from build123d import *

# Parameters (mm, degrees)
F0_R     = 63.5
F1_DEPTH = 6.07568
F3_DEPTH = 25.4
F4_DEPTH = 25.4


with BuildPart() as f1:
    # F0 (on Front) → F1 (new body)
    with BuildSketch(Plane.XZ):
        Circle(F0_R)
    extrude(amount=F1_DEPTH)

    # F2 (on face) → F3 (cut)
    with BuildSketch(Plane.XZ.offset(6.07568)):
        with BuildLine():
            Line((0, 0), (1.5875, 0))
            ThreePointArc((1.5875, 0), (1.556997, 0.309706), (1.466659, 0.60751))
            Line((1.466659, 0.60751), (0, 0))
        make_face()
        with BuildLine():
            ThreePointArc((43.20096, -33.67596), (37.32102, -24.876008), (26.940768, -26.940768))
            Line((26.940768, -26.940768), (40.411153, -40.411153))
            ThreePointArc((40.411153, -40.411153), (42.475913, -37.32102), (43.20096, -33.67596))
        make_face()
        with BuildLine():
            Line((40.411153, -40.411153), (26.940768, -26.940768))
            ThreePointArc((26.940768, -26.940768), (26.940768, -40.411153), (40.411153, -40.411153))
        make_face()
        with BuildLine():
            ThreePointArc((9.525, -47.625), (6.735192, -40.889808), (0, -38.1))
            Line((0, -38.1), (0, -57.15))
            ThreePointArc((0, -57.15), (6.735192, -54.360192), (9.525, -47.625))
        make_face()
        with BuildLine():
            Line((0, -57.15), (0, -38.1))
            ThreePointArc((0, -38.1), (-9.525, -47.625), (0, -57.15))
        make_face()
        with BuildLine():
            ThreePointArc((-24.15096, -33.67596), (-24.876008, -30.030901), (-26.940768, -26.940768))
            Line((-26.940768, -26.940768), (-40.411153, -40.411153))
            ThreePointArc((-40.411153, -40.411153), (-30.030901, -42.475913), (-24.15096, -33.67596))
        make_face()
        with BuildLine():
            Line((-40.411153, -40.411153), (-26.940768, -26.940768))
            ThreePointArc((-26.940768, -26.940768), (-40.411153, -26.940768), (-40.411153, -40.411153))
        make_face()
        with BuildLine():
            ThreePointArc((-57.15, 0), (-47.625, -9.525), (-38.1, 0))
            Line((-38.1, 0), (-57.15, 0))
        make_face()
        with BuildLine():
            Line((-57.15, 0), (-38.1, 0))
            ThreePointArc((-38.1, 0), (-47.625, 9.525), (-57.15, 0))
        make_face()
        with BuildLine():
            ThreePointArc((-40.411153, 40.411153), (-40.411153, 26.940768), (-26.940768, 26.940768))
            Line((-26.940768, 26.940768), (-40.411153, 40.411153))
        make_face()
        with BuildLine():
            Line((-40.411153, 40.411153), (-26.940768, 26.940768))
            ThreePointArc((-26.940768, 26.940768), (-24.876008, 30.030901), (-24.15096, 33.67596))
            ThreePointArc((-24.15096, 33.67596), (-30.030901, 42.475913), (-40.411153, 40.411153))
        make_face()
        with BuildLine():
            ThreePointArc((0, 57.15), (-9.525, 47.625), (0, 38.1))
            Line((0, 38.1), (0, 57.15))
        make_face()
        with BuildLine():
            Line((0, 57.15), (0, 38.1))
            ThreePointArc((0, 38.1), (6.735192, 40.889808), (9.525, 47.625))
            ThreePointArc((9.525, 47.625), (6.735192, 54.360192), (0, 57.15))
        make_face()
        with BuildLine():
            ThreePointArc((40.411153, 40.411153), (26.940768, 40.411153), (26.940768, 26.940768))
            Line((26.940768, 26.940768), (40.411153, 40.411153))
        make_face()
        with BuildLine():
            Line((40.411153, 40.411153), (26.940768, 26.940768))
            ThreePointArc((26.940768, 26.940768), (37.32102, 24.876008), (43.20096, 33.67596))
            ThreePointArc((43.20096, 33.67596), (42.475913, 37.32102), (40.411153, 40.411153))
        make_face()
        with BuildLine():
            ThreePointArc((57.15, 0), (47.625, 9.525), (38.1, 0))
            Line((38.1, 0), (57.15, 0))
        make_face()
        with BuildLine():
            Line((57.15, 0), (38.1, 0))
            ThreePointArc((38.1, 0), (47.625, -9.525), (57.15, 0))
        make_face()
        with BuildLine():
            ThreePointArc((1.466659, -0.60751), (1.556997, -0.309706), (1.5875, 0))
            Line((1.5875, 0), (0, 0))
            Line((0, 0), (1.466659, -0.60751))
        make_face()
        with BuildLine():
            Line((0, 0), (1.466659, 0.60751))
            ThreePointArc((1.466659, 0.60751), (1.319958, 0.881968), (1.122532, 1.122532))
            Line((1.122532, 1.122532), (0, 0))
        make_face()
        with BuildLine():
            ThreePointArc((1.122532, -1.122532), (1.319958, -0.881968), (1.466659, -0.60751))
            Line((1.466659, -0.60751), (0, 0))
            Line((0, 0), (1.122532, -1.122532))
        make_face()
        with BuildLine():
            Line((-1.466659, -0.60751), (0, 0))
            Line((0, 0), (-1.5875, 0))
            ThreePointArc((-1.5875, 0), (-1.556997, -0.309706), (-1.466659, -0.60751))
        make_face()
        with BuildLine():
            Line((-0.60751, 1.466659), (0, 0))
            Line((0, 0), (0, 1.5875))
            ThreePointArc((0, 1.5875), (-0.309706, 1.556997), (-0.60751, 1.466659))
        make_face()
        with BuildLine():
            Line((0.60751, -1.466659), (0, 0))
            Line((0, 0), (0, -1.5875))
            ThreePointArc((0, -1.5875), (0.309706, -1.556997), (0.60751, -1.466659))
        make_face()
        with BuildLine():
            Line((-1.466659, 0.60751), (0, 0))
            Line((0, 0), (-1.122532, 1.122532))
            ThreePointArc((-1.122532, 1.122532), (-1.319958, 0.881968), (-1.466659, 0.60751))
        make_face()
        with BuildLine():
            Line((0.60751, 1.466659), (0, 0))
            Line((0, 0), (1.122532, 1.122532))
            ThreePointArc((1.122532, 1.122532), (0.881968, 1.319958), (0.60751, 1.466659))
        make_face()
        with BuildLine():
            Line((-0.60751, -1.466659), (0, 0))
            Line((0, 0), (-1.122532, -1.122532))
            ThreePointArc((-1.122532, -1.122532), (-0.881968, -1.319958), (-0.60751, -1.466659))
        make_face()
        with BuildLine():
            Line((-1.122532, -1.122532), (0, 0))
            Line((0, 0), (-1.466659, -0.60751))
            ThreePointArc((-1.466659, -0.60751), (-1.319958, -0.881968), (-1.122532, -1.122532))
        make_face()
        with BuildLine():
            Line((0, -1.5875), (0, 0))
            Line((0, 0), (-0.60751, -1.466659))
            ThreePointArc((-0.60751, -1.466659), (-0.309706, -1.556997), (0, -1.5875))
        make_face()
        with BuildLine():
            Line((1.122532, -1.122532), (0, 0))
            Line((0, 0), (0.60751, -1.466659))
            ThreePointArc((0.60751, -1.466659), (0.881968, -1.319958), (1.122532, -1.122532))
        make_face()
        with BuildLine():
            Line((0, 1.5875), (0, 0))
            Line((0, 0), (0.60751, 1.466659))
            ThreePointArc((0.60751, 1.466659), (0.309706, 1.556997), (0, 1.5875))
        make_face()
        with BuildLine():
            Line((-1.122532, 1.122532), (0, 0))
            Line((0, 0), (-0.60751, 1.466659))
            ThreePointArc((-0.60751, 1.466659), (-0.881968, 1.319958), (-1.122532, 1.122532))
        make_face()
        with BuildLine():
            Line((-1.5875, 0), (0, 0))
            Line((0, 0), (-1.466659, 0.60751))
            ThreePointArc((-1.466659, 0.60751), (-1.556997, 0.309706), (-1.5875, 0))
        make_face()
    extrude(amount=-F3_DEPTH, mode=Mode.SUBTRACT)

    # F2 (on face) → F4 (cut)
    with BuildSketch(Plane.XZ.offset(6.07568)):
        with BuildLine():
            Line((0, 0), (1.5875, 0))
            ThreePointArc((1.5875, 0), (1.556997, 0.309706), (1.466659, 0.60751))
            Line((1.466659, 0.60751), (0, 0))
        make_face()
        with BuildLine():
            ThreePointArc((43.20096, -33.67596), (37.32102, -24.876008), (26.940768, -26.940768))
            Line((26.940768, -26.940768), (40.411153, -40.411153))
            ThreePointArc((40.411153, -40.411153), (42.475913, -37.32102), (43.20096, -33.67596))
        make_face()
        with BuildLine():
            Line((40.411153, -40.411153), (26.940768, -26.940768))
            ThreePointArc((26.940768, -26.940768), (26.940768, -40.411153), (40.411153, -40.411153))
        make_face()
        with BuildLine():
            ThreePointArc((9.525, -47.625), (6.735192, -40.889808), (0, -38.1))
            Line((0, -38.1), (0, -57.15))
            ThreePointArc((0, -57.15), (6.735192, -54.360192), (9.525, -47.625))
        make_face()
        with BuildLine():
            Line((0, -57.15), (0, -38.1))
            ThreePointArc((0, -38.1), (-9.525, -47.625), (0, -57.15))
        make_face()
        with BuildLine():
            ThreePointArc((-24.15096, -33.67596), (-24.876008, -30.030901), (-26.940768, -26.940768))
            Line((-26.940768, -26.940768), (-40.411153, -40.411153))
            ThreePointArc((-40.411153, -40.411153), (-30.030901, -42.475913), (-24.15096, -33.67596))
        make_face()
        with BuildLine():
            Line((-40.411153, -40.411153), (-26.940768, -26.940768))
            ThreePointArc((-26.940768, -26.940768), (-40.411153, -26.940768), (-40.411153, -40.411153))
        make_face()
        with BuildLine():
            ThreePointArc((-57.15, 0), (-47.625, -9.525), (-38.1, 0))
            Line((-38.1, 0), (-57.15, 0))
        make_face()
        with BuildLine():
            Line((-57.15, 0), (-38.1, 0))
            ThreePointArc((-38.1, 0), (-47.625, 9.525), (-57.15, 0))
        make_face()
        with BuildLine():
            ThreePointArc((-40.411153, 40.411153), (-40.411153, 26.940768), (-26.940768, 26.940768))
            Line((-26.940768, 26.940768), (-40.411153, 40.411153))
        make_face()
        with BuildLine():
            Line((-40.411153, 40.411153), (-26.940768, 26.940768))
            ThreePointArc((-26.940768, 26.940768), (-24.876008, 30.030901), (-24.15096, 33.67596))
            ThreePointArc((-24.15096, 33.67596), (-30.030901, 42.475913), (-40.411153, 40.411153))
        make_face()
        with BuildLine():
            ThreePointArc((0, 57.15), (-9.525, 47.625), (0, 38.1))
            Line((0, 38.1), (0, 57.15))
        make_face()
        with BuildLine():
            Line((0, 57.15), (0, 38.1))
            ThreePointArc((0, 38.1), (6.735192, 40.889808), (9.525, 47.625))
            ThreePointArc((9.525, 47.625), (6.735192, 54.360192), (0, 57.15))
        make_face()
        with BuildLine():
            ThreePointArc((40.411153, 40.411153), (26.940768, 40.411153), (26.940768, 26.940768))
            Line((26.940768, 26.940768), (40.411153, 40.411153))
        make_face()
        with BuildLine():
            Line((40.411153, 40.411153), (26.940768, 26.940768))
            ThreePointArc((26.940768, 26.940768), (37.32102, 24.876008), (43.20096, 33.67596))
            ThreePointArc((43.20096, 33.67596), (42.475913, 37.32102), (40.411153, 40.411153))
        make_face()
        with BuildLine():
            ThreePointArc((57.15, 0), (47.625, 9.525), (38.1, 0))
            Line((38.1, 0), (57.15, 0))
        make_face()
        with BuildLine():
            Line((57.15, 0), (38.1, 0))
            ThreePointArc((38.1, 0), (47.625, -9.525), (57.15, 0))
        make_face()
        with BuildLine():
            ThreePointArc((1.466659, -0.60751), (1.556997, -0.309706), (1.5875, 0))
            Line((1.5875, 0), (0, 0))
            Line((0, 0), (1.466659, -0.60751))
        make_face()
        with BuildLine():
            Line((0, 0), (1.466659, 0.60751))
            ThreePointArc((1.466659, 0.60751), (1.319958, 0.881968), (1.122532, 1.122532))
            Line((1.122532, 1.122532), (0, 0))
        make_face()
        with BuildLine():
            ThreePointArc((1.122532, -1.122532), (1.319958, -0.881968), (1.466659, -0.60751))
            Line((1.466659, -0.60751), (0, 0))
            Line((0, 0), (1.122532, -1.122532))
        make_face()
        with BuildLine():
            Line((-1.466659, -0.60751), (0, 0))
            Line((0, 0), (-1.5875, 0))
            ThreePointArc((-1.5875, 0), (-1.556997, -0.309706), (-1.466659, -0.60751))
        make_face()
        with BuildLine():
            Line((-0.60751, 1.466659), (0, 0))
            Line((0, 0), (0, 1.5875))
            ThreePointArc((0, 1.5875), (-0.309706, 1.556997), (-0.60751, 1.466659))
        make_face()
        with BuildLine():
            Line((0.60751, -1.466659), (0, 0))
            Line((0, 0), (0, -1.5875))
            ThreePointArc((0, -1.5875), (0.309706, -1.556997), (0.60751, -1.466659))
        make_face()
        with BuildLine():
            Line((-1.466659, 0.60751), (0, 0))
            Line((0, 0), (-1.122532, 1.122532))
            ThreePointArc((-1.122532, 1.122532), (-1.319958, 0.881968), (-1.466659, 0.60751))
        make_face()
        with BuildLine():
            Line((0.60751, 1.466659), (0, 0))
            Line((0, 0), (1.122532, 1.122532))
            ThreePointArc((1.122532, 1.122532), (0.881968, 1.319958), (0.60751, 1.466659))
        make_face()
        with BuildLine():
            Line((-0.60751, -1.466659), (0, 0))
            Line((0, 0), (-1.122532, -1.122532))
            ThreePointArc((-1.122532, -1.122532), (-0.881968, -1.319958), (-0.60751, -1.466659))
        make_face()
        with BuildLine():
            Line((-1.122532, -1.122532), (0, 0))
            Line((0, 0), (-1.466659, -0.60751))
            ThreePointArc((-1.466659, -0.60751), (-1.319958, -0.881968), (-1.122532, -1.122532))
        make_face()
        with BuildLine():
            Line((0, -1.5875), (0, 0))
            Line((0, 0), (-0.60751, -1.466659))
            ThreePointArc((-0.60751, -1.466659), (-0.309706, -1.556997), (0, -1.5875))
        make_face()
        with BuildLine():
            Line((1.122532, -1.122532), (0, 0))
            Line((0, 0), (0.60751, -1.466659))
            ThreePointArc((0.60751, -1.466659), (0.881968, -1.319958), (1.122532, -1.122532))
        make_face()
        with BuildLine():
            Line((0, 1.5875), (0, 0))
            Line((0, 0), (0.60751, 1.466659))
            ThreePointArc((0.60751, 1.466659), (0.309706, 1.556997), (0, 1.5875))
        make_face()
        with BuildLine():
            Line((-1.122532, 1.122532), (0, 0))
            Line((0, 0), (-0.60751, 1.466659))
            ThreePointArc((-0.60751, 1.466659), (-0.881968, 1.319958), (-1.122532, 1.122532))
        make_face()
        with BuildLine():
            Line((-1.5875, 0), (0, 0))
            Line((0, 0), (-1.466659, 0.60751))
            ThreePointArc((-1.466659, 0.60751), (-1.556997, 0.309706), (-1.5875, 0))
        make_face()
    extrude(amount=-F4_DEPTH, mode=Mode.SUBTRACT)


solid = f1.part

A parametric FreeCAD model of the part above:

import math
import FreeCAD as App
import Part
import Sketcher
from FreeCAD import Vector
Q = App.Units.Quantity

doc = App.newDocument("Part")
body = doc.addObject("PartDesign::Body", "Body")

# Sketch on XZ plane
sketch1 = body.newObject("Sketcher::SketchObject", "Sketch")
sketch1.AttachmentSupport = (doc.getObject("XZ_Plane"), [""])
sketch1.MapMode = "FlatFace"
sketch1.addGeometry(Part.Circle(Vector(0, 0, 0), Vector(0, 0, 1), 64), False)
sketch1.addConstraint(Sketcher.Constraint("Coincident", 0, 3, -1, 1))
sketch1.addConstraint(Sketcher.Constraint("Diameter", 0, Q("5 in")))
pad1 = body.newObject("PartDesign::Pad", "Pad")
pad1.Profile = sketch1
pad1.Length = Q("0.2392 in")

# Sketch on XZ plane
sketch2 = body.newObject("Sketcher::SketchObject", "Sketch001")
sketch2.AttachmentSupport = (doc.getObject("XZ_Plane"), [""])
sketch2.MapMode = "FlatFace"
sketch2.AttachmentOffset = App.Placement(Vector(0, 0, 0.2392 * 25.4), App.Rotation())
sketch2.addGeometry(Part.ArcOfCircle(Part.Circle(Vector(0, 0, 0), Vector(0, 0, 1), 1.6), math.radians(0), math.radians(23)), False)
sketch2.addGeometry(Part.ArcOfCircle(Part.Circle(Vector(0, 0, 0), Vector(0, 0, 1), 1.6), math.radians(23), math.radians(45)), False)
sketch2.addGeometry(Part.ArcOfCircle(Part.Circle(Vector(0, 0, 0), Vector(0, 0, 1), 1.6), math.radians(45), math.radians(67)), False)
sketch2.addGeometry(Part.ArcOfCircle(Part.Circle(Vector(0, 0, 0), Vector(0, 0, 1), 1.6), math.radians(67), math.radians(90)), False)
sketch2.addGeometry(Part.ArcOfCircle(Part.Circle(Vector(0, 0, 0), Vector(0, 0, 1), 1.6), math.radians(90), math.radians(113)), False)
sketch2.addGeometry(Part.ArcOfCircle(Part.Circle(Vector(0, 0, 0), Vector(0, 0, 1), 1.6), math.radians(113), math.radians(135)), False)
sketch2.addGeometry(Part.ArcOfCircle(Part.Circle(Vector(0, 0, 0), Vector(0, 0, 1), 1.6), math.radians(135), math.radians(157)), False)
sketch2.addGeometry(Part.ArcOfCircle(Part.Circle(Vector(0, 0, 0), Vector(0, 0, 1), 1.6), math.radians(157), math.radians(180)), False)
sketch2.addGeometry(Part.ArcOfCircle(Part.Circle(Vector(0, 0, 0), Vector(0, 0, 1), 1.6), math.radians(180), math.radians(203)), False)
sketch2.addGeometry(Part.ArcOfCircle(Part.Circle(Vector(0, 0, 0), Vector(0, 0, 1), 1.6), math.radians(-157), math.radians(-135)), False)
sketch2.addGeometry(Part.ArcOfCircle(Part.Circle(Vector(0, 0, 0), Vector(0, 0, 1), 1.6), math.radians(-135), math.radians(-113)), False)
sketch2.addGeometry(Part.ArcOfCircle(Part.Circle(Vector(0, 0, 0), Vector(0, 0, 1), 1.6), math.radians(-113), math.radians(-90)), False)
sketch2.addGeometry(Part.ArcOfCircle(Part.Circle(Vector(0, 0, 0), Vector(0, 0, 1), 1.6), math.radians(-90), math.radians(-67)), False)
sketch2.addGeometry(Part.ArcOfCircle(Part.Circle(Vector(0, 0, 0), Vector(0, 0, 1), 1.6), math.radians(-67), math.radians(-45)), False)
sketch2.addGeometry(Part.ArcOfCircle(Part.Circle(Vector(0, 0, 0), Vector(0, 0, 1), 1.6), math.radians(-45), math.radians(-23)), False)
sketch2.addGeometry(Part.ArcOfCircle(Part.Circle(Vector(0, 0, 0), Vector(0, 0, 1), 1.6), math.radians(-23), math.radians(0)), False)
sketch2.addGeometry(Part.ArcOfCircle(Part.Circle(Vector(33.7, -33.7, 0), Vector(0, 0, 1), 9.5), math.radians(0), math.radians(135)), False)
sketch2.addGeometry(Part.ArcOfCircle(Part.Circle(Vector(33.7, -33.7, 0), Vector(0, 0, 1), 9.5), math.radians(135), math.radians(315)), False)
sketch2.addGeometry(Part.ArcOfCircle(Part.Circle(Vector(33.7, -33.7, 0), Vector(0, 0, 1), 9.5), math.radians(-45), math.radians(0)), False)
sketch2.addGeometry(Part.ArcOfCircle(Part.Circle(Vector(0, -47.6, 0), Vector(0, 0, 1), 9.5), math.radians(0), math.radians(90)), False)
sketch2.addGeometry(Part.ArcOfCircle(Part.Circle(Vector(0, -47.6, 0), Vector(0, 0, 1), 9.5), math.radians(90), math.radians(270)), False)
sketch2.addGeometry(Part.ArcOfCircle(Part.Circle(Vector(0, -47.6, 0), Vector(0, 0, 1), 9.5), math.radians(-90), math.radians(0)), False)
sketch2.addGeometry(Part.ArcOfCircle(Part.Circle(Vector(-33.7, -33.7, 0), Vector(0, 0, 1), 9.5), math.radians(0), math.radians(45)), False)
sketch2.addGeometry(Part.ArcOfCircle(Part.Circle(Vector(-33.7, -33.7, 0), Vector(0, 0, 1), 9.5), math.radians(45), math.radians(225)), False)
sketch2.addGeometry(Part.ArcOfCircle(Part.Circle(Vector(-33.7, -33.7, 0), Vector(0, 0, 1), 9.5), math.radians(-135), math.radians(0)), False)
sketch2.addGeometry(Part.Circle(Vector(-47.6, 0, 0), Vector(0, 0, 1), 9.5), False)
sketch2.addGeometry(Part.ArcOfCircle(Part.Circle(Vector(-33.7, 33.7, 0), Vector(0, 0, 1), 9.5), math.radians(135), math.radians(315)), False)
sketch2.addGeometry(Part.ArcOfCircle(Part.Circle(Vector(-33.7, 33.7, 0), Vector(0, 0, 1), 9.5), math.radians(-45), math.radians(0)), False)
sketch2.addGeometry(Part.ArcOfCircle(Part.Circle(Vector(-33.7, 33.7, 0), Vector(0, 0, 1), 9.5), math.radians(0), math.radians(135)), False)
sketch2.addGeometry(Part.ArcOfCircle(Part.Circle(Vector(0, 47.6, 0), Vector(0, 0, 1), 9.5), math.radians(90), math.radians(270)), False)
sketch2.addGeometry(Part.ArcOfCircle(Part.Circle(Vector(0, 47.6, 0), Vector(0, 0, 1), 9.5), math.radians(-90), math.radians(0)), False)
sketch2.addGeometry(Part.ArcOfCircle(Part.Circle(Vector(0, 47.6, 0), Vector(0, 0, 1), 9.5), math.radians(0), math.radians(90)), False)
sketch2.addGeometry(Part.ArcOfCircle(Part.Circle(Vector(33.7, 33.7, 0), Vector(0, 0, 1), 9.5), math.radians(45), math.radians(225)), False)
sketch2.addGeometry(Part.ArcOfCircle(Part.Circle(Vector(33.7, 33.7, 0), Vector(0, 0, 1), 9.5), math.radians(-135), math.radians(0)), False)
sketch2.addGeometry(Part.ArcOfCircle(Part.Circle(Vector(33.7, 33.7, 0), Vector(0, 0, 1), 9.5), math.radians(0), math.radians(45)), False)
sketch2.addGeometry(Part.Circle(Vector(47.6, 0, 0), Vector(0, 0, 1), 9.5), False)
sketch2.addConstraint(Sketcher.Constraint("Tangent", 0, 2, 1, 1))
sketch2.addConstraint(Sketcher.Constraint("Tangent", 1, 2, 2, 1))
sketch2.addConstraint(Sketcher.Constraint("Tangent", 2, 2, 3, 1))
sketch2.addConstraint(Sketcher.Constraint("Coincident", 3, 2, 4, 1))
sketch2.addConstraint(Sketcher.Constraint("Tangent", 4, 2, 5, 1))
sketch2.addConstraint(Sketcher.Constraint("Tangent", 5, 2, 6, 1))
sketch2.addConstraint(Sketcher.Constraint("Tangent", 6, 2, 7, 1))
sketch2.addConstraint(Sketcher.Constraint("Coincident", 7, 2, 8, 1))
sketch2.addConstraint(Sketcher.Constraint("Tangent", 8, 2, 9, 1))
sketch2.addConstraint(Sketcher.Constraint("Tangent", 9, 2, 10, 1))
sketch2.addConstraint(Sketcher.Constraint("Tangent", 10, 2, 11, 1))
sketch2.addConstraint(Sketcher.Constraint("Coincident", 11, 2, 12, 1))
sketch2.addConstraint(Sketcher.Constraint("Tangent", 12, 2, 13, 1))
sketch2.addConstraint(Sketcher.Constraint("Tangent", 13, 2, 14, 1))
sketch2.addConstraint(Sketcher.Constraint("Tangent", 14, 2, 15, 1))
sketch2.addConstraint(Sketcher.Constraint("Coincident", 15, 2, 0, 1))
sketch2.addConstraint(Sketcher.Constraint("Tangent", 16, 2, 17, 1))
sketch2.addConstraint(Sketcher.Constraint("Tangent", 17, 2, 18, 1))
sketch2.addConstraint(Sketcher.Constraint("Tangent", 18, 2, 16, 1))
sketch2.addConstraint(Sketcher.Constraint("Tangent", 19, 2, 20, 1))
sketch2.addConstraint(Sketcher.Constraint("Tangent", 20, 2, 21, 1))
sketch2.addConstraint(Sketcher.Constraint("Tangent", 21, 2, 19, 1))
sketch2.addConstraint(Sketcher.Constraint("Tangent", 22, 2, 23, 1))
sketch2.addConstraint(Sketcher.Constraint("Tangent", 23, 2, 24, 1))
sketch2.addConstraint(Sketcher.Constraint("Tangent", 24, 2, 22, 1))
sketch2.addConstraint(Sketcher.Constraint("Tangent", 26, 2, 27, 1))
sketch2.addConstraint(Sketcher.Constraint("Tangent", 27, 2, 28, 1))
sketch2.addConstraint(Sketcher.Constraint("Tangent", 28, 2, 26, 1))
sketch2.addConstraint(Sketcher.Constraint("Tangent", 29, 2, 30, 1))
sketch2.addConstraint(Sketcher.Constraint("Tangent", 30, 2, 31, 1))
sketch2.addConstraint(Sketcher.Constraint("Tangent", 31, 2, 29, 1))
sketch2.addConstraint(Sketcher.Constraint("Tangent", 32, 2, 33, 1))
sketch2.addConstraint(Sketcher.Constraint("Tangent", 33, 2, 34, 1))
sketch2.addConstraint(Sketcher.Constraint("Tangent", 34, 2, 32, 1))
sketch2.addConstraint(Sketcher.Constraint("Coincident", 1, 3, -1, 1))
sketch2.addConstraint(Sketcher.Constraint("Coincident", 5, 3, -1, 1))
sketch2.addConstraint(Sketcher.Constraint("Coincident", 9, 3, -1, 1))
sketch2.addConstraint(Sketcher.Constraint("Coincident", 13, 3, -1, 1))
sketch2.addConstraint(Sketcher.Constraint("Coincident", 4, 3, 3, 3))
sketch2.addConstraint(Sketcher.Constraint("Coincident", 8, 3, 7, 3))
sketch2.addConstraint(Sketcher.Constraint("Coincident", 12, 3, 11, 3))
sketch2.addConstraint(Sketcher.Constraint("Coincident", 15, 3, 0, 3))
sketch2.addConstraint(Sketcher.Constraint("Equal", 1, 2))
sketch2.addConstraint(Sketcher.Constraint("Equal", 0, 3))
sketch2.addConstraint(Sketcher.Constraint("Equal", 5, 6))
sketch2.addConstraint(Sketcher.Constraint("Equal", 18, 19))
sketch2.addConstraint(Sketcher.Constraint("Equal", 21, 23))
sketch2.addConstraint(Sketcher.Constraint("Equal", 24, 25))
sketch2.addConstraint(Sketcher.Constraint("Equal", 25, 26))
sketch2.addConstraint(Sketcher.Constraint("Equal", 28, 29))
sketch2.addConstraint(Sketcher.Constraint("Equal", 31, 32))
sketch2.addConstraint(Sketcher.Constraint("Equal", 34, 35))
sketch2.addConstraint(Sketcher.Constraint("Symmetric", 16, 3, 26, 3, -1, 1))
sketch2.addConstraint(Sketcher.Constraint("Symmetric", 19, 3, 29, 3, -1, 1))
sketch2.addConstraint(Sketcher.Constraint("Symmetric", 22, 3, 32, 3, -1, 1))
sketch2.addConstraint(Sketcher.Constraint("Symmetric", 25, 3, 35, 3, -1, 1))
sketch2.addConstraint(Sketcher.Constraint("Symmetric", 16, 3, 22, 3, -2))
sketch2.addConstraint(Sketcher.Constraint("Symmetric", 21, 2, 30, 2, -1))
sketch2.addConstraint(Sketcher.Constraint("PointOnObject", 25, 3, -1))
sketch2.addConstraint(Sketcher.Constraint("PointOnObject", 3, 2, -2))
sketch2.addConstraint(Sketcher.Constraint("PointOnObject", 7, 2, -1))
sketch2.addConstraint(Sketcher.Constraint("PointOnObject", 11, 2, -2))
sketch2.addConstraint(Sketcher.Constraint("PointOnObject", 15, 2, -1))
sketch2.addConstraint(Sketcher.Constraint("PointOnObject", 19, 2, -2))
sketch2.addConstraint(Sketcher.Constraint("PointOnObject", 20, 2, -2))
sketch2.addConstraint(Sketcher.Constraint("PointOnObject", 29, 2, -2))
sketch2.addConstraint(Sketcher.Constraint("PointOnObject", 31, 2, -2))
sketch2.addConstraint(Sketcher.Constraint("Horizontal", 2, 2, 4, 2))
sketch2.addConstraint(Sketcher.Constraint("Horizontal", 1, 2, 5, 2))
sketch2.addConstraint(Sketcher.Constraint("Horizontal", 0, 2, 6, 2))
sketch2.addConstraint(Sketcher.Constraint("Horizontal", 10, 2, 12, 2))
sketch2.addConstraint(Sketcher.Constraint("Horizontal", 9, 2, 13, 2))
sketch2.addConstraint(Sketcher.Constraint("Horizontal", 8, 2, 14, 2))
sketch2.addConstraint(Sketcher.Constraint("Horizontal", 24, 3, 18, 2))
sketch2.addConstraint(Sketcher.Constraint("Horizontal", 20, 3, 21, 2))
sketch2.addConstraint(Sketcher.Constraint("Horizontal", 16, 2, 22, 2))
sketch2.addConstraint(Sketcher.Constraint("Horizontal", 17, 2, 23, 2))
sketch2.addConstraint(Sketcher.Constraint("Horizontal", 18, 2, 24, 2))
sketch2.addConstraint(Sketcher.Constraint("Horizontal", 34, 3, 27, 2))
sketch2.addConstraint(Sketcher.Constraint("Horizontal", 26, 2, 32, 2))
sketch2.addConstraint(Sketcher.Constraint("Horizontal", 27, 2, 33, 2))
sketch2.addConstraint(Sketcher.Constraint("Horizontal", 28, 2, 34, 2))
sketch2.addConstraint(Sketcher.Constraint("Vertical", 6, 2, 8, 2))
sketch2.addConstraint(Sketcher.Constraint("Vertical", 5, 2, 9, 2))
sketch2.addConstraint(Sketcher.Constraint("Vertical", 4, 2, 10, 2))
sketch2.addConstraint(Sketcher.Constraint("Vertical", 22, 2, 26, 2))
sketch2.addConstraint(Sketcher.Constraint("Vertical", 23, 2, 28, 2))
sketch2.addConstraint(Sketcher.Constraint("Diameter", 25, Q("0.75 in")))
sketch2.addConstraint(Sketcher.Constraint("Radius", 1, Q("0.0625 in")))
sketch2.addConstraint(Sketcher.Constraint("DistanceY", 19, 2, -1, 1, Q("1.5 in")))
sketch2.addConstraint(Sketcher.Constraint("DistanceX", 25, 3, -1, 1, Q("1.875 in")))
sketch2.addConstraint(Sketcher.Constraint("DistanceX", -1, 1, 16, 3, 33.67596))
sketch2.addConstraint(Sketcher.Constraint("DistanceY", 16, 3, -1, 1, 33.675961))
sketch2.addConstraint(Sketcher.Constraint("DistanceX", -1, 1, 0, 2, 1.466659))
sketch2.addConstraint(Sketcher.Constraint("DistanceX", -1, 1, 1, 2, 1.122532))
sketch2.addConstraint(Sketcher.Constraint("DistanceX", -1, 1, 2, 2, 0.60751))
sketch2.addConstraint(Sketcher.Constraint("DistanceX", -1, 1, 16, 2, 26.940768))
sketch2.addConstraint(Sketcher.Constraint("DistanceX", -1, 1, 17, 2, 40.411153))
pocket1 = body.newObject("PartDesign::Pocket", "Pocket")
pocket1.Profile = sketch2
pocket1.Length = Q("1 in")

# Sketch on XZ plane
sketch3 = body.newObject("Sketcher::SketchObject", "Sketch002")
sketch3.AttachmentSupport = (doc.getObject("XZ_Plane"), [""])
sketch3.MapMode = "FlatFace"
sketch3.AttachmentOffset = App.Placement(Vector(0, 0, 0.2392 * 25.4), App.Rotation())
sketch3.addGeometry(Part.ArcOfCircle(Part.Circle(Vector(0, 0, 0), Vector(0, 0, 1), 1.6), math.radians(0), math.radians(23)), False)
sketch3.addGeometry(Part.ArcOfCircle(Part.Circle(Vector(0, 0, 0), Vector(0, 0, 1), 1.6), math.radians(23), math.radians(45)), False)
sketch3.addGeometry(Part.ArcOfCircle(Part.Circle(Vector(0, 0, 0), Vector(0, 0, 1), 1.6), math.radians(45), math.radians(67)), False)
sketch3.addGeometry(Part.ArcOfCircle(Part.Circle(Vector(0, 0, 0), Vector(0, 0, 1), 1.6), math.radians(67), math.radians(90)), False)
sketch3.addGeometry(Part.ArcOfCircle(Part.Circle(Vector(0, 0, 0), Vector(0, 0, 1), 1.6), math.radians(90), math.radians(113)), False)
sketch3.addGeometry(Part.ArcOfCircle(Part.Circle(Vector(0, 0, 0), Vector(0, 0, 1), 1.6), math.radians(113), math.radians(135)), False)
sketch3.addGeometry(Part.ArcOfCircle(Part.Circle(Vector(0, 0, 0), Vector(0, 0, 1), 1.6), math.radians(135), math.radians(157)), False)
sketch3.addGeometry(Part.ArcOfCircle(Part.Circle(Vector(0, 0, 0), Vector(0, 0, 1), 1.6), math.radians(157), math.radians(180)), False)
sketch3.addGeometry(Part.ArcOfCircle(Part.Circle(Vector(0, 0, 0), Vector(0, 0, 1), 1.6), math.radians(180), math.radians(203)), False)
sketch3.addGeometry(Part.ArcOfCircle(Part.Circle(Vector(0, 0, 0), Vector(0, 0, 1), 1.6), math.radians(-157), math.radians(-135)), False)
sketch3.addGeometry(Part.ArcOfCircle(Part.Circle(Vector(0, 0, 0), Vector(0, 0, 1), 1.6), math.radians(-135), math.radians(-113)), False)
sketch3.addGeometry(Part.ArcOfCircle(Part.Circle(Vector(0, 0, 0), Vector(0, 0, 1), 1.6), math.radians(-113), math.radians(-90)), False)
sketch3.addGeometry(Part.ArcOfCircle(Part.Circle(Vector(0, 0, 0), Vector(0, 0, 1), 1.6), math.radians(-90), math.radians(-67)), False)
sketch3.addGeometry(Part.ArcOfCircle(Part.Circle(Vector(0, 0, 0), Vector(0, 0, 1), 1.6), math.radians(-67), math.radians(-45)), False)
sketch3.addGeometry(Part.ArcOfCircle(Part.Circle(Vector(0, 0, 0), Vector(0, 0, 1), 1.6), math.radians(-45), math.radians(-23)), False)
sketch3.addGeometry(Part.ArcOfCircle(Part.Circle(Vector(0, 0, 0), Vector(0, 0, 1), 1.6), math.radians(-23), math.radians(0)), False)
sketch3.addGeometry(Part.ArcOfCircle(Part.Circle(Vector(33.7, -33.7, 0), Vector(0, 0, 1), 9.5), math.radians(0), math.radians(135)), False)
sketch3.addGeometry(Part.ArcOfCircle(Part.Circle(Vector(33.7, -33.7, 0), Vector(0, 0, 1), 9.5), math.radians(135), math.radians(315)), False)
sketch3.addGeometry(Part.ArcOfCircle(Part.Circle(Vector(33.7, -33.7, 0), Vector(0, 0, 1), 9.5), math.radians(-45), math.radians(0)), False)
sketch3.addGeometry(Part.ArcOfCircle(Part.Circle(Vector(0, -47.6, 0), Vector(0, 0, 1), 9.5), math.radians(0), math.radians(90)), False)
sketch3.addGeometry(Part.ArcOfCircle(Part.Circle(Vector(0, -47.6, 0), Vector(0, 0, 1), 9.5), math.radians(90), math.radians(270)), False)
sketch3.addGeometry(Part.ArcOfCircle(Part.Circle(Vector(0, -47.6, 0), Vector(0, 0, 1), 9.5), math.radians(-90), math.radians(0)), False)
sketch3.addGeometry(Part.ArcOfCircle(Part.Circle(Vector(-33.7, -33.7, 0), Vector(0, 0, 1), 9.5), math.radians(0), math.radians(45)), False)
sketch3.addGeometry(Part.ArcOfCircle(Part.Circle(Vector(-33.7, -33.7, 0), Vector(0, 0, 1), 9.5), math.radians(45), math.radians(225)), False)
sketch3.addGeometry(Part.ArcOfCircle(Part.Circle(Vector(-33.7, -33.7, 0), Vector(0, 0, 1), 9.5), math.radians(-135), math.radians(0)), False)
sketch3.addGeometry(Part.Circle(Vector(-47.6, 0, 0), Vector(0, 0, 1), 9.5), False)
sketch3.addGeometry(Part.ArcOfCircle(Part.Circle(Vector(-33.7, 33.7, 0), Vector(0, 0, 1), 9.5), math.radians(135), math.radians(315)), False)
sketch3.addGeometry(Part.ArcOfCircle(Part.Circle(Vector(-33.7, 33.7, 0), Vector(0, 0, 1), 9.5), math.radians(-45), math.radians(0)), False)
sketch3.addGeometry(Part.ArcOfCircle(Part.Circle(Vector(-33.7, 33.7, 0), Vector(0, 0, 1), 9.5), math.radians(0), math.radians(135)), False)
sketch3.addGeometry(Part.ArcOfCircle(Part.Circle(Vector(0, 47.6, 0), Vector(0, 0, 1), 9.5), math.radians(90), math.radians(270)), False)
sketch3.addGeometry(Part.ArcOfCircle(Part.Circle(Vector(0, 47.6, 0), Vector(0, 0, 1), 9.5), math.radians(-90), math.radians(0)), False)
sketch3.addGeometry(Part.ArcOfCircle(Part.Circle(Vector(0, 47.6, 0), Vector(0, 0, 1), 9.5), math.radians(0), math.radians(90)), False)
sketch3.addGeometry(Part.ArcOfCircle(Part.Circle(Vector(33.7, 33.7, 0), Vector(0, 0, 1), 9.5), math.radians(45), math.radians(225)), False)
sketch3.addGeometry(Part.ArcOfCircle(Part.Circle(Vector(33.7, 33.7, 0), Vector(0, 0, 1), 9.5), math.radians(-135), math.radians(0)), False)
sketch3.addGeometry(Part.ArcOfCircle(Part.Circle(Vector(33.7, 33.7, 0), Vector(0, 0, 1), 9.5), math.radians(0), math.radians(45)), False)
sketch3.addGeometry(Part.Circle(Vector(47.6, 0, 0), Vector(0, 0, 1), 9.5), False)
sketch3.addConstraint(Sketcher.Constraint("Tangent", 0, 2, 1, 1))
sketch3.addConstraint(Sketcher.Constraint("Tangent", 1, 2, 2, 1))
sketch3.addConstraint(Sketcher.Constraint("Tangent", 2, 2, 3, 1))
sketch3.addConstraint(Sketcher.Constraint("Coincident", 3, 2, 4, 1))
sketch3.addConstraint(Sketcher.Constraint("Tangent", 4, 2, 5, 1))
sketch3.addConstraint(Sketcher.Constraint("Tangent", 5, 2, 6, 1))
sketch3.addConstraint(Sketcher.Constraint("Tangent", 6, 2, 7, 1))
sketch3.addConstraint(Sketcher.Constraint("Coincident", 7, 2, 8, 1))
sketch3.addConstraint(Sketcher.Constraint("Tangent", 8, 2, 9, 1))
sketch3.addConstraint(Sketcher.Constraint("Tangent", 9, 2, 10, 1))
sketch3.addConstraint(Sketcher.Constraint("Tangent", 10, 2, 11, 1))
sketch3.addConstraint(Sketcher.Constraint("Coincident", 11, 2, 12, 1))
sketch3.addConstraint(Sketcher.Constraint("Tangent", 12, 2, 13, 1))
sketch3.addConstraint(Sketcher.Constraint("Tangent", 13, 2, 14, 1))
sketch3.addConstraint(Sketcher.Constraint("Tangent", 14, 2, 15, 1))
sketch3.addConstraint(Sketcher.Constraint("Coincident", 15, 2, 0, 1))
sketch3.addConstraint(Sketcher.Constraint("Tangent", 16, 2, 17, 1))
sketch3.addConstraint(Sketcher.Constraint("Tangent", 17, 2, 18, 1))
sketch3.addConstraint(Sketcher.Constraint("Tangent", 18, 2, 16, 1))
sketch3.addConstraint(Sketcher.Constraint("Tangent", 19, 2, 20, 1))
sketch3.addConstraint(Sketcher.Constraint("Tangent", 20, 2, 21, 1))
sketch3.addConstraint(Sketcher.Constraint("Tangent", 21, 2, 19, 1))
sketch3.addConstraint(Sketcher.Constraint("Tangent", 22, 2, 23, 1))
sketch3.addConstraint(Sketcher.Constraint("Tangent", 23, 2, 24, 1))
sketch3.addConstraint(Sketcher.Constraint("Tangent", 24, 2, 22, 1))
sketch3.addConstraint(Sketcher.Constraint("Tangent", 26, 2, 27, 1))
sketch3.addConstraint(Sketcher.Constraint("Tangent", 27, 2, 28, 1))
sketch3.addConstraint(Sketcher.Constraint("Tangent", 28, 2, 26, 1))
sketch3.addConstraint(Sketcher.Constraint("Tangent", 29, 2, 30, 1))
sketch3.addConstraint(Sketcher.Constraint("Tangent", 30, 2, 31, 1))
sketch3.addConstraint(Sketcher.Constraint("Tangent", 31, 2, 29, 1))
sketch3.addConstraint(Sketcher.Constraint("Tangent", 32, 2, 33, 1))
sketch3.addConstraint(Sketcher.Constraint("Tangent", 33, 2, 34, 1))
sketch3.addConstraint(Sketcher.Constraint("Tangent", 34, 2, 32, 1))
sketch3.addConstraint(Sketcher.Constraint("Coincident", 1, 3, -1, 1))
sketch3.addConstraint(Sketcher.Constraint("Coincident", 5, 3, -1, 1))
sketch3.addConstraint(Sketcher.Constraint("Coincident", 9, 3, -1, 1))
sketch3.addConstraint(Sketcher.Constraint("Coincident", 13, 3, -1, 1))
sketch3.addConstraint(Sketcher.Constraint("Coincident", 4, 3, 3, 3))
sketch3.addConstraint(Sketcher.Constraint("Coincident", 8, 3, 7, 3))
sketch3.addConstraint(Sketcher.Constraint("Coincident", 12, 3, 11, 3))
sketch3.addConstraint(Sketcher.Constraint("Coincident", 15, 3, 0, 3))
sketch3.addConstraint(Sketcher.Constraint("Equal", 1, 2))
sketch3.addConstraint(Sketcher.Constraint("Equal", 0, 3))
sketch3.addConstraint(Sketcher.Constraint("Equal", 5, 6))
sketch3.addConstraint(Sketcher.Constraint("Equal", 18, 19))
sketch3.addConstraint(Sketcher.Constraint("Equal", 21, 23))
sketch3.addConstraint(Sketcher.Constraint("Equal", 24, 25))
sketch3.addConstraint(Sketcher.Constraint("Equal", 25, 26))
sketch3.addConstraint(Sketcher.Constraint("Equal", 28, 29))
sketch3.addConstraint(Sketcher.Constraint("Equal", 31, 32))
sketch3.addConstraint(Sketcher.Constraint("Equal", 34, 35))
sketch3.addConstraint(Sketcher.Constraint("Symmetric", 16, 3, 26, 3, -1, 1))
sketch3.addConstraint(Sketcher.Constraint("Symmetric", 19, 3, 29, 3, -1, 1))
sketch3.addConstraint(Sketcher.Constraint("Symmetric", 22, 3, 32, 3, -1, 1))
sketch3.addConstraint(Sketcher.Constraint("Symmetric", 25, 3, 35, 3, -1, 1))
sketch3.addConstraint(Sketcher.Constraint("Symmetric", 16, 3, 22, 3, -2))
sketch3.addConstraint(Sketcher.Constraint("Symmetric", 21, 2, 30, 2, -1))
sketch3.addConstraint(Sketcher.Constraint("PointOnObject", 25, 3, -1))
sketch3.addConstraint(Sketcher.Constraint("PointOnObject", 3, 2, -2))
sketch3.addConstraint(Sketcher.Constraint("PointOnObject", 7, 2, -1))
sketch3.addConstraint(Sketcher.Constraint("PointOnObject", 11, 2, -2))
sketch3.addConstraint(Sketcher.Constraint("PointOnObject", 15, 2, -1))
sketch3.addConstraint(Sketcher.Constraint("PointOnObject", 19, 2, -2))
sketch3.addConstraint(Sketcher.Constraint("PointOnObject", 20, 2, -2))
sketch3.addConstraint(Sketcher.Constraint("PointOnObject", 29, 2, -2))
sketch3.addConstraint(Sketcher.Constraint("PointOnObject", 31, 2, -2))
sketch3.addConstraint(Sketcher.Constraint("Horizontal", 2, 2, 4, 2))
sketch3.addConstraint(Sketcher.Constraint("Horizontal", 1, 2, 5, 2))
sketch3.addConstraint(Sketcher.Constraint("Horizontal", 0, 2, 6, 2))
sketch3.addConstraint(Sketcher.Constraint("Horizontal", 10, 2, 12, 2))
sketch3.addConstraint(Sketcher.Constraint("Horizontal", 9, 2, 13, 2))
sketch3.addConstraint(Sketcher.Constraint("Horizontal", 8, 2, 14, 2))
sketch3.addConstraint(Sketcher.Constraint("Horizontal", 24, 3, 18, 2))
sketch3.addConstraint(Sketcher.Constraint("Horizontal", 20, 3, 21, 2))
sketch3.addConstraint(Sketcher.Constraint("Horizontal", 16, 2, 22, 2))
sketch3.addConstraint(Sketcher.Constraint("Horizontal", 17, 2, 23, 2))
sketch3.addConstraint(Sketcher.Constraint("Horizontal", 18, 2, 24, 2))
sketch3.addConstraint(Sketcher.Constraint("Horizontal", 34, 3, 27, 2))
sketch3.addConstraint(Sketcher.Constraint("Horizontal", 26, 2, 32, 2))
sketch3.addConstraint(Sketcher.Constraint("Horizontal", 27, 2, 33, 2))
sketch3.addConstraint(Sketcher.Constraint("Horizontal", 28, 2, 34, 2))
sketch3.addConstraint(Sketcher.Constraint("Vertical", 6, 2, 8, 2))
sketch3.addConstraint(Sketcher.Constraint("Vertical", 5, 2, 9, 2))
sketch3.addConstraint(Sketcher.Constraint("Vertical", 4, 2, 10, 2))
sketch3.addConstraint(Sketcher.Constraint("Vertical", 22, 2, 26, 2))
sketch3.addConstraint(Sketcher.Constraint("Vertical", 23, 2, 28, 2))
sketch3.addConstraint(Sketcher.Constraint("Diameter", 25, Q("0.75 in")))
sketch3.addConstraint(Sketcher.Constraint("Radius", 1, Q("0.0625 in")))
sketch3.addConstraint(Sketcher.Constraint("DistanceY", 19, 2, -1, 1, Q("1.5 in")))
sketch3.addConstraint(Sketcher.Constraint("DistanceX", 25, 3, -1, 1, Q("1.875 in")))
sketch3.addConstraint(Sketcher.Constraint("DistanceX", -1, 1, 16, 3, 33.67596))
sketch3.addConstraint(Sketcher.Constraint("DistanceY", 16, 3, -1, 1, 33.675961))
sketch3.addConstraint(Sketcher.Constraint("DistanceX", -1, 1, 0, 2, 1.466659))
sketch3.addConstraint(Sketcher.Constraint("DistanceX", -1, 1, 1, 2, 1.122532))
sketch3.addConstraint(Sketcher.Constraint("DistanceX", -1, 1, 2, 2, 0.60751))
sketch3.addConstraint(Sketcher.Constraint("DistanceX", -1, 1, 16, 2, 26.940768))
sketch3.addConstraint(Sketcher.Constraint("DistanceX", -1, 1, 17, 2, 40.411153))
pocket2 = body.newObject("PartDesign::Pocket", "Pocket001")
pocket2.Profile = sketch3
pocket2.Length = Q("1 in")

doc.recompute()
